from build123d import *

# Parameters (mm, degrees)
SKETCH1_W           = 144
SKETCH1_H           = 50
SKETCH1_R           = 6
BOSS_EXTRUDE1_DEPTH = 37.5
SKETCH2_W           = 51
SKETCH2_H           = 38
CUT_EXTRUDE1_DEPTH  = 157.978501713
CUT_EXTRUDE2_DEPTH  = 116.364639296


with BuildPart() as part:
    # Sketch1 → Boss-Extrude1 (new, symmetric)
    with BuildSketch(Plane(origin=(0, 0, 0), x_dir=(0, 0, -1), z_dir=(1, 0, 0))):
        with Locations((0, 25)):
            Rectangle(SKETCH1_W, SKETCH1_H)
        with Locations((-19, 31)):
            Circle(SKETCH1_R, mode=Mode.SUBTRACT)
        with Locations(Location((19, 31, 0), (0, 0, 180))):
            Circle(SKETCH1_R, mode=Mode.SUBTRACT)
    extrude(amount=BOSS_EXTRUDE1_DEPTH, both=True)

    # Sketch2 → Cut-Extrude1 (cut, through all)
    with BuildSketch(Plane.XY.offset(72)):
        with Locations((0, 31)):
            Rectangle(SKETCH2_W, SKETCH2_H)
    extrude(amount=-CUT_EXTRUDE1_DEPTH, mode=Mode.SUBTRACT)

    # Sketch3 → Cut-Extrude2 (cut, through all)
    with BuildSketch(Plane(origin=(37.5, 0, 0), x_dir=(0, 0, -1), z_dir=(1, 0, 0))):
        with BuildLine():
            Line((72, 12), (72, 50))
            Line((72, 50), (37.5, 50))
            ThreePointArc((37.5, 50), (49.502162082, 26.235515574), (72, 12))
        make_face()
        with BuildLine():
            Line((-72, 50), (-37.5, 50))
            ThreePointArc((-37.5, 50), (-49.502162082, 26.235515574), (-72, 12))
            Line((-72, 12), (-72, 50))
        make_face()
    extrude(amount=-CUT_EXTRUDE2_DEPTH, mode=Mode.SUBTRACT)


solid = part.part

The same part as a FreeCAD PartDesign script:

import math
import FreeCAD as App
import Part
import Sketcher

V = App.Vector
Q = App.Units.Quantity


def add_polygon(sketch, points):
    """Adds a closed chain of lines whose ends are joined by coincident constraints."""
    first, n = sketch.GeometryCount, len(points)
    for a, b in zip(points, points[1:] + points[:1]):
        sketch.addGeometry(Part.LineSegment(App.Vector(*a, 0), App.Vector(*b, 0)), False)
    for i in range(n):
        sketch.addConstraint(Sketcher.Constraint("Coincident", first + i, 2, first + (i + 1) % n, 1))

doc = App.newDocument("Part")
params = doc.addObject("Spreadsheet::Sheet", "Params")
for row, (alias, value) in enumerate([
    ("sketch1_diameter", "12 mm"),
    ("sketch1_width", "50 mm"),
    ("sketch1_height", "144 mm"),
    ("pad1_length", "75 mm"),
    ("sketch2_width", "51 mm"),
    ("sketch2_height", "38 mm"),
    ("sketch3_radius", "50 mm"),
    ("sketch3_width", "38 mm"),
    ("sketch3_height", "34.5 mm"),
], start=1):
    params.set(f"A{row}", alias)
    params.set(f"B{row}", "=" + value)
    params.setAlias(f"B{row}", alias)

body = doc.addObject("PartDesign::Body", "Body")

sketch1 = body.newObject("Sketcher::SketchObject", "Sketch")
sketch1.AttachmentSupport = (doc.getObject("YZ_Plane"), [""])
sketch1.MapMode = "FlatFace"
add_polygon(sketch1, [(50, 72), (0, 72), (0, -72), (50, -72)])
sketch1.addGeometry(Part.Circle(V(31, 19, 0), V(0, 0, 1), 6), False)
sketch1.addGeometry(Part.Circle(V(31, -19, 0), V(0, 0, 1), 6), False)
sketch1.addConstraint([
    Sketcher.Constraint("Horizontal", 0),
    Sketcher.Constraint("Vertical", 1),
    Sketcher.Constraint("Horizontal", 2),
    Sketcher.Constraint("Vertical", 3),
    Sketcher.Constraint("Equal", 4, 5),
    Sketcher.Constraint("Symmetric", 0, 2, 1, 2, -1, 1),
    Sketcher.Constraint("Symmetric", 4, 3, 5, 3, -1),
    Sketcher.Constraint("Diameter", 4, Q("12 mm")),
    Sketcher.Constraint("DistanceX", 0, 2, 0, 1, Q("50 mm")),
    Sketcher.Constraint("DistanceY", 1, 2, 1, 1, Q("144 mm")),
    Sketcher.Constraint("DistanceX", -1, 1, 4, 3, Q("31 mm")),
    Sketcher.Constraint("DistanceY", -1, 1, 4, 3, Q("19 mm")),
])
sketch1.setExpression("Constraints[11]", "Params.sketch1_diameter")
sketch1.setExpression("Constraints[12]", "Params.sketch1_width")
sketch1.setExpression("Constraints[13]", "Params.sketch1_height")
pad1 = body.newObject("PartDesign::Pad", "Pad")
pad1.Profile = sketch1
pad1.setExpression("Length", "Params.pad1_length")
pad1.Midplane = True

sketch2 = body.newObject("Sketcher::SketchObject", "Sketch001")
sketch2.AttachmentSupport = (doc.getObject("XY_Plane"), [""])
sketch2.MapMode = "FlatFace"
sketch2.AttachmentOffset = App.Placement(V(0, 0, 72), App.Rotation())
add_polygon(sketch2, [(-26, 50), (-26, 12), (26, 12), (26, 50)])
sketch2.addConstraint([
    Sketcher.Constraint("Vertical", 0),
    Sketcher.Constraint("Horizontal", 1),
    Sketcher.Constraint("Vertical", 2),
    Sketcher.Constraint("Horizontal", 3),
    Sketcher.Constraint("DistanceX", 1, 1, 1, 2, Q("51 mm")),
    Sketcher.Constraint("DistanceY", 0, 2, 0, 1, Q("38 mm")),
    Sketcher.Constraint("DistanceY", -1, 1, 0, 2, Q("12 mm")),
    Sketcher.Constraint("DistanceX", 0, 2, -1, 1, Q("25.5 mm")),
])
sketch2.setExpression("Constraints[8]", "Params.sketch2_width")
sketch2.setExpression("Constraints[9]", "Params.sketch2_height")
pocket1 = body.newObject("PartDesign::Pocket", "Pocket")
pocket1.Profile = sketch2
pocket1.Type = "ThroughAll"

sketch3 = body.newObject("Sketcher::SketchObject", "Sketch002")
sketch3.AttachmentSupport = (doc.getObject("YZ_Plane"), [""])
sketch3.MapMode = "FlatFace"
sketch3.AttachmentOffset = App.Placement(V(0, 0, 37.5), App.Rotation())
sketch3.addGeometry([
    Part.LineSegment(V(12, -72, 0), V(50, -72, 0)),
    Part.LineSegment(V(50, -72, 0), V(50, -38, 0)),
    Part.ArcOfCircle(Part.Circle(V(60, -87, 0), V(0, 0, 1), 50), math.radians(101), math.radians(163)),
    Part.LineSegment(V(50, 38, 0), V(50, 72, 0)),
    Part.LineSegment(V(50, 72, 0), V(12, 72, 0)),
    Part.ArcOfCircle(Part.Circle(V(60, 87, 0), V(0, 0, 1), 50), math.radians(-163), math.radians(-101)),
], False)
sketch3.addConstraint([
    Sketcher.Constraint("Coincident", 0, 2, 1, 1),
    Sketcher.Constraint("Coincident", 1, 2, 2, 1),
    Sketcher.Constraint("Coincident", 2, 2, 0, 1),
    Sketcher.Constraint("Coincident", 3, 2, 4, 1),
    Sketcher.Constraint("Coincident", 4, 2, 5, 1),
    Sketcher.Constraint("Coincident", 5, 2, 3, 1),
    Sketcher.Constraint("Horizontal", 0),
    Sketcher.Constraint("Vertical", 1),
    Sketcher.Constraint("Vertical", 3),
    Sketcher.Constraint("Horizontal", 4),
    Sketcher.Constraint("Equal", 2, 5),
    Sketcher.Constraint("Symmetric", 2, 3, 5, 3, -1),
    Sketcher.Constraint("Symmetric", 0, 2, 3, 2, -1),
    Sketcher.Constraint("Radius", 2, Q("50 mm")),
    Sketcher.Constraint("DistanceX", 0, 1, 0, 2, Q("38 mm")),
    Sketcher.Constraint("DistanceY", 1, 1, 1, 2, Q("34.5 mm")),
    Sketcher.Constraint("DistanceX", -1, 1, 0, 2, Q("50 mm")),
    Sketcher.Constraint("DistanceY", 0, 2, -1, 1, Q("72 mm")),
])
sketch3.setExpression("Constraints[13]", "Params.sketch3_radius")
sketch3.setExpression("Constraints[14]", "Params.sketch3_width")
sketch3.setExpression("Constraints[15]", "Params.sketch3_height")
pocket2 = body.newObject("PartDesign::Pocket", "Pocket001")
pocket2.Profile = sketch3
pocket2.Type = "ThroughAll"

doc.recompute()
